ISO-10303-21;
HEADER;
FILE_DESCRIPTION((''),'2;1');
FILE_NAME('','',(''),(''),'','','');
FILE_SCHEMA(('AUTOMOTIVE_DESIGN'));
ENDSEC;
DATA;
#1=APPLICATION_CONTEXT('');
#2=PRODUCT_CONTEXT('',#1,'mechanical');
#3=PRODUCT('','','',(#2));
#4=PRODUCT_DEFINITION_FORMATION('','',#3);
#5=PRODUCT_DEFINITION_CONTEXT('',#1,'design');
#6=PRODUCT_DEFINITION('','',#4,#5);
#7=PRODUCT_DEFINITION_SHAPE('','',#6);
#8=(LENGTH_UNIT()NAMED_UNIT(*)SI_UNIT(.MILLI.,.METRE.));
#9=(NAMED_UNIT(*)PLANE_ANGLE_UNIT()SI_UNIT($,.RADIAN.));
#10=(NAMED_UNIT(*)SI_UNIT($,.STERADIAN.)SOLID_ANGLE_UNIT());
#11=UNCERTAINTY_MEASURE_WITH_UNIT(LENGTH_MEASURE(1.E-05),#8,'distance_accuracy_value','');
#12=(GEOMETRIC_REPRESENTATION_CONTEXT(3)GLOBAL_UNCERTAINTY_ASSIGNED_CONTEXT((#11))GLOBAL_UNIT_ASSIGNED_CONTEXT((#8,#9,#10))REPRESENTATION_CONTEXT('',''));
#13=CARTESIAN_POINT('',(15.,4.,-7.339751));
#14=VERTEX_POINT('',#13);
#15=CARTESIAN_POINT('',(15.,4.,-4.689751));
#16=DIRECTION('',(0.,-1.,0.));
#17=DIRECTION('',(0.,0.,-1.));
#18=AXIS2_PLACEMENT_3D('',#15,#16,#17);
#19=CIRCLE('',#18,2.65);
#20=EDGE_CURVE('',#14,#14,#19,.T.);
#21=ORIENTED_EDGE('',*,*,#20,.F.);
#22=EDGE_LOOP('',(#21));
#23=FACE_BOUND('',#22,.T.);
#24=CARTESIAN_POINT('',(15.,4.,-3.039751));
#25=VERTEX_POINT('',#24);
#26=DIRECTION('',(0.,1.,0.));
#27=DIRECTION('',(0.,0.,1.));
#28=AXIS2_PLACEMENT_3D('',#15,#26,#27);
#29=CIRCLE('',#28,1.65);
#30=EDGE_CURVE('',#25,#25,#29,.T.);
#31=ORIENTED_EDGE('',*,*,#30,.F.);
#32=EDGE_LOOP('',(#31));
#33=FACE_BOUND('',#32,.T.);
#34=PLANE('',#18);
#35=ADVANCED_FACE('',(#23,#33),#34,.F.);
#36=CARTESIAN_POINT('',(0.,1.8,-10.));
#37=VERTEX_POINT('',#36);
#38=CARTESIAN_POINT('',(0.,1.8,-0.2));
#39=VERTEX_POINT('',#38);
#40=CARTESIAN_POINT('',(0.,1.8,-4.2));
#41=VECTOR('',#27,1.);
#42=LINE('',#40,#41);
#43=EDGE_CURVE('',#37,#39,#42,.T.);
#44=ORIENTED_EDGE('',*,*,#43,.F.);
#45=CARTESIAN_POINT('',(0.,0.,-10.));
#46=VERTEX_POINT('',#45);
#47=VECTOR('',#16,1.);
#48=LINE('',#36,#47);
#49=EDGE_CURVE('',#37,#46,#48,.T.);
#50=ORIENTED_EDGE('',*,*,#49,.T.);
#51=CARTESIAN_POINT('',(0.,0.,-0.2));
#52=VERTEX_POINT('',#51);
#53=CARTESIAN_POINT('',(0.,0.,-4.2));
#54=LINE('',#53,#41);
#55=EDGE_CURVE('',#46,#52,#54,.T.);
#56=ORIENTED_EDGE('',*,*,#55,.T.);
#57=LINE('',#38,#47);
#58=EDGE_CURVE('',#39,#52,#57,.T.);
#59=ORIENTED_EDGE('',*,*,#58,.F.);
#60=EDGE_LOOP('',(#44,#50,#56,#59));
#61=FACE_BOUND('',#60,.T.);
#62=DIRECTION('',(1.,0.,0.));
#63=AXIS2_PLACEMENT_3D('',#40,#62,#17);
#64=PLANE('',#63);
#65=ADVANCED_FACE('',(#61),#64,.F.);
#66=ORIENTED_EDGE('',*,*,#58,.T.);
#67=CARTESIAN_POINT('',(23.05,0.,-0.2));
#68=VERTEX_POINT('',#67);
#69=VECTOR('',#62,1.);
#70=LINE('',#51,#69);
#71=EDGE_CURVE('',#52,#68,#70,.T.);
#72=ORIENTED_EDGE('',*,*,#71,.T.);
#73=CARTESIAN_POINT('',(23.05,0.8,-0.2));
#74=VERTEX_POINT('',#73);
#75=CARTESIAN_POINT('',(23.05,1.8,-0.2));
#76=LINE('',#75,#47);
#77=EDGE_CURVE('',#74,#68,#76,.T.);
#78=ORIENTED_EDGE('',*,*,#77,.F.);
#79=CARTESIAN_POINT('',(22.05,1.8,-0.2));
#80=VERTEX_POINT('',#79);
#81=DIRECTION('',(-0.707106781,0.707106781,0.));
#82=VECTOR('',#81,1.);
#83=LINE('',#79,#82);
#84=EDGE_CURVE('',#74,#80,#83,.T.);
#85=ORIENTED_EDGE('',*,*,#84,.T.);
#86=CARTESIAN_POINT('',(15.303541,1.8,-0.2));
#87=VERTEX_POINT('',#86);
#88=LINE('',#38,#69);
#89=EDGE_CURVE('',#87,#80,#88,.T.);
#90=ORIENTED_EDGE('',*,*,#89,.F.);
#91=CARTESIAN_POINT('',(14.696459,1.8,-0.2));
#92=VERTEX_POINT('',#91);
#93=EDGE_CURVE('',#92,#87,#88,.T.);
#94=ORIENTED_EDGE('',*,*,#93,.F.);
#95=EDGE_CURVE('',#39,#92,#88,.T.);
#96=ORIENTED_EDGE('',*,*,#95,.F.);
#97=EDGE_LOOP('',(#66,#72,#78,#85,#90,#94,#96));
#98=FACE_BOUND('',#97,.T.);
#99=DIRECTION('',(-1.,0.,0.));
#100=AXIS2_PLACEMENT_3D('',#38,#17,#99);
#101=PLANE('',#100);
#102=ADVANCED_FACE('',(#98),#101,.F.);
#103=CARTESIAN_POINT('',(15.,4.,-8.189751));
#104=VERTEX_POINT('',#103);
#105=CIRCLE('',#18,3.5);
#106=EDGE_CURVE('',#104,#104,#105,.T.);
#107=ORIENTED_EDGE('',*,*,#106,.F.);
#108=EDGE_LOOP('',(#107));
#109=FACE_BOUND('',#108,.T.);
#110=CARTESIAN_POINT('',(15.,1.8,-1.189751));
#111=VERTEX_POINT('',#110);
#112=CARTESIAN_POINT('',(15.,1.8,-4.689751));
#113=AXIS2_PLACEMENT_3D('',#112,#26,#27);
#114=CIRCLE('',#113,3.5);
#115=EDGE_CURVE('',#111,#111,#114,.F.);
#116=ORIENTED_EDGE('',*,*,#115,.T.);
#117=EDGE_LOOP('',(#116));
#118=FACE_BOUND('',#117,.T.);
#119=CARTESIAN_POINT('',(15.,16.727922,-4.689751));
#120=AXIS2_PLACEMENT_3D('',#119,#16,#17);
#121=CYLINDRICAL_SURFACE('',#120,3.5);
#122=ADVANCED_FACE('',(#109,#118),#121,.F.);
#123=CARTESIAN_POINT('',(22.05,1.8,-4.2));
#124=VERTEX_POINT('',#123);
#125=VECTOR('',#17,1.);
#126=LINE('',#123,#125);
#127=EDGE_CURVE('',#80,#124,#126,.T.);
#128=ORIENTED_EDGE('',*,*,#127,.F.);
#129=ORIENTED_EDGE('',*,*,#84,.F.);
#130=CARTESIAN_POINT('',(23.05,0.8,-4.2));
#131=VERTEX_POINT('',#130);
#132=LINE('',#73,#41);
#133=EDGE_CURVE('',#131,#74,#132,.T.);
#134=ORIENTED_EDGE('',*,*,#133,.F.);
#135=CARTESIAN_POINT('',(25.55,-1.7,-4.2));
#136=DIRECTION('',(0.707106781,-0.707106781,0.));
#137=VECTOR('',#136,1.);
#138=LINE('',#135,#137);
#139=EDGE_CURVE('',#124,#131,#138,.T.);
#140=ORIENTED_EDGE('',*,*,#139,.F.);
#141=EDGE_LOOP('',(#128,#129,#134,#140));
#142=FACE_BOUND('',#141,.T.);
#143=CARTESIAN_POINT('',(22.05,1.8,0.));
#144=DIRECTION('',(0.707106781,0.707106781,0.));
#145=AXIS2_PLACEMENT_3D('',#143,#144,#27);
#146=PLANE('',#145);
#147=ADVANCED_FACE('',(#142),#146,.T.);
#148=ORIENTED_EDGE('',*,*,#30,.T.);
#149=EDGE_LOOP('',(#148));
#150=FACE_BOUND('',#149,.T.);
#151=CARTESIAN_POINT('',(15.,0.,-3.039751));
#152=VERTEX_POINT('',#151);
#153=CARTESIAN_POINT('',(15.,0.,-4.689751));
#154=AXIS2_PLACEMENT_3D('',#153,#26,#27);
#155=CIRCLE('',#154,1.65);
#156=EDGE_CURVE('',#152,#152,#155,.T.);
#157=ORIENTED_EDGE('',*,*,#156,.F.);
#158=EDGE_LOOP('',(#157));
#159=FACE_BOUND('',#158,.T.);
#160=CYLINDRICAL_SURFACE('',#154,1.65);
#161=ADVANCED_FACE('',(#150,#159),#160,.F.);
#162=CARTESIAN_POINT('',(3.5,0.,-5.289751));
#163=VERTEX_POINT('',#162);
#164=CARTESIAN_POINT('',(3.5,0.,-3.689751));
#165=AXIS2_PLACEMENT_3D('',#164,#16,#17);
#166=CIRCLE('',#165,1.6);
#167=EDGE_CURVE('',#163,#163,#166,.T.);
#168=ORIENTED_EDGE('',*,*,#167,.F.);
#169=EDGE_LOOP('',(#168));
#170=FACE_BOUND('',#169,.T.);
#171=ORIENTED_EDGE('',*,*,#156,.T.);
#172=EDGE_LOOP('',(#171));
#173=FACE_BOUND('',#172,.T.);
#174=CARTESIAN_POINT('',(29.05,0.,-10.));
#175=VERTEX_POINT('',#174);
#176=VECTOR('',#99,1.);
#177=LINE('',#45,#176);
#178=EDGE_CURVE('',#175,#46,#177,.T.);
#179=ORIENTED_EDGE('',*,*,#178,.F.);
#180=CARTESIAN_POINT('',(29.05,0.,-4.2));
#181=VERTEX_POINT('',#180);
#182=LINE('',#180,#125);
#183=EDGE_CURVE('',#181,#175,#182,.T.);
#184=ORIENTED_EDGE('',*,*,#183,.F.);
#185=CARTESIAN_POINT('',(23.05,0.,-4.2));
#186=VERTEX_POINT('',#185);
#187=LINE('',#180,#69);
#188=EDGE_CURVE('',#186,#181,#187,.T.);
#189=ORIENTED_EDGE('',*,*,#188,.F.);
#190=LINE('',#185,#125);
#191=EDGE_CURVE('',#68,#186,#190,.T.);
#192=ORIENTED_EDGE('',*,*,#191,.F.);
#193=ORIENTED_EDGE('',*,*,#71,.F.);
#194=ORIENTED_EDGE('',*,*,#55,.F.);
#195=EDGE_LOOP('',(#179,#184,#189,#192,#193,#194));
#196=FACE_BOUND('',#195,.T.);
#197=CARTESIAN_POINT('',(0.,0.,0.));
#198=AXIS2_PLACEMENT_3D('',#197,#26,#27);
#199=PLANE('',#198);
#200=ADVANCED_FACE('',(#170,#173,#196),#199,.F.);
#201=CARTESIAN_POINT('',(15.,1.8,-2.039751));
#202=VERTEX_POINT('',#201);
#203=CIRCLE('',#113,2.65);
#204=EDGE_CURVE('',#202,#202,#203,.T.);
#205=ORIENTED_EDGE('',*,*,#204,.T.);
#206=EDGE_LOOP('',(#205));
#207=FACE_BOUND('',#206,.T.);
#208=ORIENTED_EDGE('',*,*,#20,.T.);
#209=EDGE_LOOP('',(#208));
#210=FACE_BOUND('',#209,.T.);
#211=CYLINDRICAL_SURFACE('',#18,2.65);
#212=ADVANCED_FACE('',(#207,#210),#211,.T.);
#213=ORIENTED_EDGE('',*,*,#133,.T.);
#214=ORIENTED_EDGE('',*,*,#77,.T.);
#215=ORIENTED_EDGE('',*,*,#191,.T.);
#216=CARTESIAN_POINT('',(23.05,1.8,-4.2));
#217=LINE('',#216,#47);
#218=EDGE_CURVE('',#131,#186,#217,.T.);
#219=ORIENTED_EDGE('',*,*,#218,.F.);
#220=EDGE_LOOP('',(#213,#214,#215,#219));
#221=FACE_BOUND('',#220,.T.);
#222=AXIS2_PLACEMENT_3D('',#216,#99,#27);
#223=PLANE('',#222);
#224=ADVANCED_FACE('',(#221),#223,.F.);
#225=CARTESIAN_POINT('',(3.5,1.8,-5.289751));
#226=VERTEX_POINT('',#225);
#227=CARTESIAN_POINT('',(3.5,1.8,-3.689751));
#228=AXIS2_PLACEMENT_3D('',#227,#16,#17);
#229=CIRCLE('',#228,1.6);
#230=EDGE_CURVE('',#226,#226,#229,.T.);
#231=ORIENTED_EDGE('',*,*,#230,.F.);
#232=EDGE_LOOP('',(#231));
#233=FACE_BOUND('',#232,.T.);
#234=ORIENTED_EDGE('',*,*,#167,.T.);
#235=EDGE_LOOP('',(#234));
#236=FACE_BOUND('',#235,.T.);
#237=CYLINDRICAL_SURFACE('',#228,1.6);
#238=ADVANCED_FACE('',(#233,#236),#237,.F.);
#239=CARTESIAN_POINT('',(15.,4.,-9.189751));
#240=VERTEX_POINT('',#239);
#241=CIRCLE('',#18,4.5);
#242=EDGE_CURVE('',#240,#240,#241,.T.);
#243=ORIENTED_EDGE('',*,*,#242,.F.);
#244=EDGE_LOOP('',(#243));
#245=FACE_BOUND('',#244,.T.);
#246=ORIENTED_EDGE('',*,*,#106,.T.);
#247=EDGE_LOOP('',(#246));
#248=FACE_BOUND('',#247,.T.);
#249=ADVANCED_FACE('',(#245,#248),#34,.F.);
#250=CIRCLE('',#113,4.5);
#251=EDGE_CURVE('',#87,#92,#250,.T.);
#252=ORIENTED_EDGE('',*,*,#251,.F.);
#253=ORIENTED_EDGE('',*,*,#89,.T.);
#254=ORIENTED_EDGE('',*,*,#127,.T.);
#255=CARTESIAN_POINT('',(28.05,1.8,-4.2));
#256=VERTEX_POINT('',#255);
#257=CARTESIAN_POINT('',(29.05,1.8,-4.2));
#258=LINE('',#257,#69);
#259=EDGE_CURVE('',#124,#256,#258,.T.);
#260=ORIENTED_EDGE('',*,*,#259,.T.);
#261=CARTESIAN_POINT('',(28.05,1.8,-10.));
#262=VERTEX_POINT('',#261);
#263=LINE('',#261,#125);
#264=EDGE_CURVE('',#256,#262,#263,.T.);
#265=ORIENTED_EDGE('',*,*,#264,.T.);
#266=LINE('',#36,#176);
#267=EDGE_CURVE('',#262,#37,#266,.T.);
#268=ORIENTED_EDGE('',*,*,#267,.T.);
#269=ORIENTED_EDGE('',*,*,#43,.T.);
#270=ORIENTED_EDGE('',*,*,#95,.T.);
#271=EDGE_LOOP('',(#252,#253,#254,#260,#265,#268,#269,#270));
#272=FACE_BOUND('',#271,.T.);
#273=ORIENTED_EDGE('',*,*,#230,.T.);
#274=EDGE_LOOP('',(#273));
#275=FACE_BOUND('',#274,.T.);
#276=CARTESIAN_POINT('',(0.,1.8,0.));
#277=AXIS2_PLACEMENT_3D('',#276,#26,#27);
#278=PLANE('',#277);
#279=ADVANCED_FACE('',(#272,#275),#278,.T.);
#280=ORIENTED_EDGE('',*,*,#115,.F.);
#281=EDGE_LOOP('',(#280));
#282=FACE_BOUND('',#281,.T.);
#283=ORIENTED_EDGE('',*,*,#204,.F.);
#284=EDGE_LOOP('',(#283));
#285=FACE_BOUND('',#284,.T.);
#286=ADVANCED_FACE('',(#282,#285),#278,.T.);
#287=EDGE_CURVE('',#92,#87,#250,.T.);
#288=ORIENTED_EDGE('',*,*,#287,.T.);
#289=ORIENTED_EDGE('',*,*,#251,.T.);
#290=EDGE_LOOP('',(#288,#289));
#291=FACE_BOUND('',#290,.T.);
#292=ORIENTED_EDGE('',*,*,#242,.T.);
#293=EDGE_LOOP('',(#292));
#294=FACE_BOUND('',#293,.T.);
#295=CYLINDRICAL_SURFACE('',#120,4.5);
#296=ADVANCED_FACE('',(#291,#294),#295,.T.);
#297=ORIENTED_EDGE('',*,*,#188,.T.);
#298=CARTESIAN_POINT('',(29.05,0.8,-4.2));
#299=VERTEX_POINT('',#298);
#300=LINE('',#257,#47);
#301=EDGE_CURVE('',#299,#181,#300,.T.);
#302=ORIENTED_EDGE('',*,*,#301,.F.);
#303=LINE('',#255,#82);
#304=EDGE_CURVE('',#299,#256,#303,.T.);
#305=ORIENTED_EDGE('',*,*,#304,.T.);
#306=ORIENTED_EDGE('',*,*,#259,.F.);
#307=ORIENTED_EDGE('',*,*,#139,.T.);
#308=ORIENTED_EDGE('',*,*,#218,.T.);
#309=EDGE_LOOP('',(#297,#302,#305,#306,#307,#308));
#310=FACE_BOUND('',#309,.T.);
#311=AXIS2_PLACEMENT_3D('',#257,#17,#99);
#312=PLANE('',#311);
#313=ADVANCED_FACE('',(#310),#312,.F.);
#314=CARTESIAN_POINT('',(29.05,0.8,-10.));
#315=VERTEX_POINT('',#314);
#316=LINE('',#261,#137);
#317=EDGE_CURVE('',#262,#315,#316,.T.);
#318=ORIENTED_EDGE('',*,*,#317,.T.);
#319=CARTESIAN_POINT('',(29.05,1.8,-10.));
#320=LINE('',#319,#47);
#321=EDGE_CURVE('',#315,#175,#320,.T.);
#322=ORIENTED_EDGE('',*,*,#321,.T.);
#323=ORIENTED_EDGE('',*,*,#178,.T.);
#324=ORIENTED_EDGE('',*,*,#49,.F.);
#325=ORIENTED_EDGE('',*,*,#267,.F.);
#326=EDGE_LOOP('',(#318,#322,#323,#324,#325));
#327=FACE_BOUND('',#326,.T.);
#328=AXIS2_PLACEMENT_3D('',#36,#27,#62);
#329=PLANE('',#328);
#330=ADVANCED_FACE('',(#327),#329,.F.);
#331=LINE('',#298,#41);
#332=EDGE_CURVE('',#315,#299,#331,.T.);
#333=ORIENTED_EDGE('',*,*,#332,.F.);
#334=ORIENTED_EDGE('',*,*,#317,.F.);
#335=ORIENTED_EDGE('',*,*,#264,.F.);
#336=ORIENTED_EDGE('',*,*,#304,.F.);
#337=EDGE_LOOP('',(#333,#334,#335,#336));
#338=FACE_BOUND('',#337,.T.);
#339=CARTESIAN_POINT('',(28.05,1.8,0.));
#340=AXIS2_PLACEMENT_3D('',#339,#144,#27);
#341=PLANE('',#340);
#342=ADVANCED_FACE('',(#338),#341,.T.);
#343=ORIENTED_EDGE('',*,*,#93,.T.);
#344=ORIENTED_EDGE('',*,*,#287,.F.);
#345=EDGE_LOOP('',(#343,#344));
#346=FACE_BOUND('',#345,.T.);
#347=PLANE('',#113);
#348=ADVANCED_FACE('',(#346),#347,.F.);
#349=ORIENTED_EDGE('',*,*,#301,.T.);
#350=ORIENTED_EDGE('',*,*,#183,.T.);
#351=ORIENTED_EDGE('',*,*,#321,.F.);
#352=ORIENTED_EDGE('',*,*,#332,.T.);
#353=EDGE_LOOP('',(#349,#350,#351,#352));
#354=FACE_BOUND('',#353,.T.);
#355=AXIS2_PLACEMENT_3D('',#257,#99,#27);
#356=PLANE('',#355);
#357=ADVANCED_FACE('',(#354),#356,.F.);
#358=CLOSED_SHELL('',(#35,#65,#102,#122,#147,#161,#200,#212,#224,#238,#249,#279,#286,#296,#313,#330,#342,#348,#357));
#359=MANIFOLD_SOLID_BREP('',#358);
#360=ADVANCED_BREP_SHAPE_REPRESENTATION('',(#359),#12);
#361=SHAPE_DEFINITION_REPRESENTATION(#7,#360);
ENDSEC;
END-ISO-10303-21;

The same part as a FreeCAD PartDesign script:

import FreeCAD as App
import Part
import Sketcher


def edges_at(feature, points):
    """Names of the edges that pass closest to the given points."""
    edges = feature.Shape.Edges
    near = lambda p: min(range(len(edges)), key=lambda i: edges[i].distToShape(Part.Vertex(*p))[0])
    return sorted({f"Edge{near(p) + 1}" for p in points})

doc = App.newDocument("Part")
body = doc.addObject("PartDesign::Body", "Body")

sketch1 = body.newObject("Sketcher::SketchObject", "Sketch")
sketch1.AttachmentSupport = (doc.getObject("XZ_Plane"), [""])
sketch1.MapMode = "FlatFace"
sketch1.addGeometry(Part.LineSegment(App.Vector(0, -0.2, 0), App.Vector(23.1, -0.2, 0)), False)
sketch1.addGeometry(Part.LineSegment(App.Vector(23.1, -0.2, 0), App.Vector(23.1, -4.2, 0)), False)
sketch1.addGeometry(Part.LineSegment(App.Vector(23.1, -4.2, 0), App.Vector(29.1, -4.2, 0)), False)
sketch1.addGeometry(Part.LineSegment(App.Vector(29.1, -4.2, 0), App.Vector(29.1, -10, 0)), False)
sketch1.addGeometry(Part.LineSegment(App.Vector(29.1, -10, 0), App.Vector(0, -10, 0)), False)
sketch1.addGeometry(Part.LineSegment(App.Vector(0, -10, 0), App.Vector(0, -0.2, 0)), False)
sketch1.addConstraint(Sketcher.Constraint("Coincident", 0, 2, 1, 1))
sketch1.addConstraint(Sketcher.Constraint("Coincident", 1, 2, 2, 1))
sketch1.addConstraint(Sketcher.Constraint("Coincident", 2, 2, 3, 1))
sketch1.addConstraint(Sketcher.Constraint("Coincident", 3, 2, 4, 1))
sketch1.addConstraint(Sketcher.Constraint("Coincident", 4, 2, 5, 1))
sketch1.addConstraint(Sketcher.Constraint("Coincident", 5, 2, 0, 1))
sketch1.addConstraint(Sketcher.Constraint("Horizontal", 0))
sketch1.addConstraint(Sketcher.Constraint("Vertical", 1))
sketch1.addConstraint(Sketcher.Constraint("Horizontal", 2))
sketch1.addConstraint(Sketcher.Constraint("Vertical", 3))
sketch1.addConstraint(Sketcher.Constraint("Horizontal", 4))
sketch1.addConstraint(Sketcher.Constraint("Vertical", 5))
sketch1.addConstraint(Sketcher.Constraint("PointOnObject", 4, 2, -2))
sketch1.addConstraint(Sketcher.Constraint("DistanceX", 2, 1, 2, 2, 6.0))
sketch1.addConstraint(Sketcher.Constraint("DistanceY", 1, 2, 1, 1, 4.0))
sketch1.addConstraint(Sketcher.Constraint("DistanceY", 3, 2, 3, 1, 5.8))
sketch1.addConstraint(Sketcher.Constraint("DistanceY", 3, 2, -1, 1, 10.0))
sketch1.addConstraint(Sketcher.Constraint("DistanceX", 0, 1, 0, 2, 23.05))
pad1 = body.newObject("PartDesign::Pad", "Pad")
pad1.Profile = sketch1
pad1.Length = 1.8
pad1.Reversed = True

sketch2 = body.newObject("Sketcher::SketchObject", "Sketch001")
sketch2.AttachmentSupport = (doc.getObject("XZ_Plane"), [""])
sketch2.MapMode = "FlatFace"
sketch2.addGeometry(Part.Circle(App.Vector(3.5, -3.7, 0), App.Vector(0, 0, 1), 1.6), False)
sketch2.addConstraint(Sketcher.Constraint("Diameter", 0, 3.2))
sketch2.addConstraint(Sketcher.Constraint("DistanceX", -1, 1, 0, 3, 3.5))
sketch2.addConstraint(Sketcher.Constraint("DistanceY", 0, 3, -1, 1, 3.689751))
pocket1 = body.newObject("PartDesign::Pocket", "Pocket")
pocket1.Profile = sketch2
pocket1.Type = "ThroughAll"

sketch3 = body.newObject("Sketcher::SketchObject", "Sketch002")
sketch3.AttachmentSupport = (doc.getObject("XZ_Plane"), [""])
sketch3.MapMode = "FlatFace"
sketch3.addGeometry(Part.Circle(App.Vector(15, -4.7, 0), App.Vector(0, 0, 1), 2.6), False)
sketch3.addConstraint(Sketcher.Constraint("Diameter", 0, 5.3))
sketch3.addConstraint(Sketcher.Constraint("DistanceX", -1, 1, 0, 3, 15.0))
sketch3.addConstraint(Sketcher.Constraint("DistanceY", 0, 3, -1, 1, 4.689751))
pad2 = body.newObject("PartDesign::Pad", "Pad001")
pad2.Profile = sketch3
pad2.Length = 4
pad2.Reversed = True

sketch4 = body.newObject("Sketcher::SketchObject", "Sketch003")
sketch4.AttachmentSupport = (doc.getObject("XZ_Plane"), [""])
sketch4.MapMode = "FlatFace"
sketch4.AttachmentOffset = App.Placement(App.Vector(0, 0, -4), App.Rotation())
sketch4.addGeometry(Part.Circle(App.Vector(15, -4.7, 0), App.Vector(0, 0, 1), 1.6), False)
sketch4.addConstraint(Sketcher.Constraint("Diameter", 0, 3.3))
sketch4.addConstraint(Sketcher.Constraint("DistanceX", -1, 1, 0, 3, 15.0))
sketch4.addConstraint(Sketcher.Constraint("DistanceY", 0, 3, -1, 1, 4.689751))
pocket2 = body.newObject("PartDesign::Pocket", "Pocket001")
pocket2.Profile = sketch4
pocket2.Type = "ThroughAll"
pocket2.Reversed = True

sketch5 = body.newObject("Sketcher::SketchObject", "Sketch004")
sketch5.AttachmentSupport = (doc.getObject("XZ_Plane"), [""])
sketch5.MapMode = "FlatFace"
sketch5.AttachmentOffset = App.Placement(App.Vector(0, 0, -1.8), App.Rotation())
sketch5.addGeometry(Part.Circle(App.Vector(15, -4.7, 0), App.Vector(0, 0, 1), 4.5), False)
sketch5.addGeometry(Part.Circle(App.Vector(15, -4.7, 0), App.Vector(0, 0, 1), 3.5), False)
sketch5.addConstraint(Sketcher.Constraint("Coincident", 1, 3, 0, 3))
sketch5.addConstraint(Sketcher.Constraint("Diameter", 0, 9.0))
sketch5.addConstraint(Sketcher.Constraint("Diameter", 1, 7.0))
sketch5.addConstraint(Sketcher.Constraint("DistanceX", -1, 1, 0, 3, 15.0))
sketch5.addConstraint(Sketcher.Constraint("DistanceY", 0, 3, -1, 1, 4.689751))
pad3 = body.newObject("PartDesign::Pad", "Pad002")
pad3.Profile = sketch5
pad3.Length = 2.2
pad3.Reversed = True
doc.recompute()

chamfer = body.newObject("PartDesign::Chamfer", "Chamfer")
chamfer.Base = (pad3, edges_at(pad3, [(23.05, 1.8, -2.2), (29.05, 1.8, -7.1)]))
chamfer.Size = 1

doc.recompute()
